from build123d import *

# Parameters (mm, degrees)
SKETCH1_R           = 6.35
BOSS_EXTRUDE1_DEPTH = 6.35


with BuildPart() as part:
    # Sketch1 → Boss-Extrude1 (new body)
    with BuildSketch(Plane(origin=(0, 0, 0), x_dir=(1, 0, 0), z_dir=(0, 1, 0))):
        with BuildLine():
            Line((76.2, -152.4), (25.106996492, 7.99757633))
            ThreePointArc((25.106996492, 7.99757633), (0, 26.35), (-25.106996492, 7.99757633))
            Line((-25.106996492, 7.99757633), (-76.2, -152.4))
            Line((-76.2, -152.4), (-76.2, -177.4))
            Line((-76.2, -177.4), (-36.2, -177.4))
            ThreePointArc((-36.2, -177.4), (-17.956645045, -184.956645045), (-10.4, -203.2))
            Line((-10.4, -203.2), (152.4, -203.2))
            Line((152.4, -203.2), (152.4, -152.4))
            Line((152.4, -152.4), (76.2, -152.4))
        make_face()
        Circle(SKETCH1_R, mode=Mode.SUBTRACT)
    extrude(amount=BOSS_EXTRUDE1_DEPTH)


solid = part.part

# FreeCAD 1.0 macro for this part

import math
import FreeCAD as App
import Part
import Sketcher
Q = App.Units.Quantity

doc = App.newDocument("Part")
body = doc.addObject("PartDesign::Body", "Body")

sketch1 = body.newObject("Sketcher::SketchObject", "Sketch")
sketch1.AttachmentSupport = (doc.getObject("XZ_Plane"), [""])
sketch1.MapMode = "FlatFace"
sketch1.addGeometry([
    Part.LineSegment(App.Vector(76, 152, 0), App.Vector(25, -8, 0)),
    Part.ArcOfCircle(Part.Circle(App.Vector(0, 0, 0), App.Vector(0, 0, 1), 26), math.radians(-162), math.radians(-18)),
    Part.LineSegment(App.Vector(-25, -8, 0), App.Vector(-76, 152, 0)),
    Part.LineSegment(App.Vector(-76, 152, 0), App.Vector(-76, 177, 0)),
    Part.LineSegment(App.Vector(-76, 177, 0), App.Vector(-36, 177, 0)),
    Part.ArcOfCircle(Part.Circle(App.Vector(-36, 203, 0), App.Vector(0, 0, 1), 26), math.radians(-90), math.radians(0)),
    Part.LineSegment(App.Vector(-10, 203, 0), App.Vector(152, 203, 0)),
    Part.LineSegment(App.Vector(152, 203, 0), App.Vector(152, 152, 0)),
    Part.LineSegment(App.Vector(152, 152, 0), App.Vector(76, 152, 0)),
    Part.Circle(App.Vector(0, 0, 0), App.Vector(0, 0, 1), 6),
], False)
sketch1.addConstraint([
    Sketcher.Constraint("Tangent", 0, 2, 1, 2),
    Sketcher.Constraint("Tangent", 1, 1, 2, 1),
    Sketcher.Constraint("Coincident", 2, 2, 3, 1),
    Sketcher.Constraint("Coincident", 3, 2, 4, 1),
    Sketcher.Constraint("Tangent", 4, 2, 5, 1),
    Sketcher.Constraint("Coincident", 5, 2, 6, 1),
    Sketcher.Constraint("Coincident", 6, 2, 7, 1),
    Sketcher.Constraint("Coincident", 7, 2, 8, 1),
    Sketcher.Constraint("Coincident", 8, 2, 0, 1),
    Sketcher.Constraint("Vertical", 3),
    Sketcher.Constraint("Horizontal", 4),
    Sketcher.Constraint("Horizontal", 6),
    Sketcher.Constraint("Vertical", 7),
    Sketcher.Constraint("Horizontal", 8),
    Sketcher.Constraint("Coincident", 1, 3, -1, 1),
    Sketcher.Constraint("Coincident", 9, 3, -1, 1),
    Sketcher.Constraint("Symmetric", 2, 2, 8, 2, -2),
    Sketcher.Constraint("Diameter", 9, Q("12.7 mm")),
    Sketcher.Constraint("Radius", 5, Q("25.8 mm")),
    Sketcher.Constraint("DistanceX", 4, 1, 4, 2, Q("40 mm")),
    Sketcher.Constraint("DistanceY", 3, 1, 3, 2, Q("25 mm")),
    Sketcher.Constraint("Radius", 1, Q("26.35 mm")),
    Sketcher.Constraint("DistanceX", 6, 1, 6, 2, Q("162.8 mm")),
    Sketcher.Constraint("DistanceX", 8, 2, 8, 1, Q("76.2 mm")),
    Sketcher.Constraint("DistanceY", 7, 2, 7, 1, Q("50.8 mm")),
    Sketcher.Constraint("DistanceY", -1, 1, 5, 3, Q("203.2 mm")),
])
pad1 = body.newObject("PartDesign::Pad", "Pad")
pad1.Profile = sketch1
pad1.Length = 6.35
pad1.Reversed = True

doc.recompute()
